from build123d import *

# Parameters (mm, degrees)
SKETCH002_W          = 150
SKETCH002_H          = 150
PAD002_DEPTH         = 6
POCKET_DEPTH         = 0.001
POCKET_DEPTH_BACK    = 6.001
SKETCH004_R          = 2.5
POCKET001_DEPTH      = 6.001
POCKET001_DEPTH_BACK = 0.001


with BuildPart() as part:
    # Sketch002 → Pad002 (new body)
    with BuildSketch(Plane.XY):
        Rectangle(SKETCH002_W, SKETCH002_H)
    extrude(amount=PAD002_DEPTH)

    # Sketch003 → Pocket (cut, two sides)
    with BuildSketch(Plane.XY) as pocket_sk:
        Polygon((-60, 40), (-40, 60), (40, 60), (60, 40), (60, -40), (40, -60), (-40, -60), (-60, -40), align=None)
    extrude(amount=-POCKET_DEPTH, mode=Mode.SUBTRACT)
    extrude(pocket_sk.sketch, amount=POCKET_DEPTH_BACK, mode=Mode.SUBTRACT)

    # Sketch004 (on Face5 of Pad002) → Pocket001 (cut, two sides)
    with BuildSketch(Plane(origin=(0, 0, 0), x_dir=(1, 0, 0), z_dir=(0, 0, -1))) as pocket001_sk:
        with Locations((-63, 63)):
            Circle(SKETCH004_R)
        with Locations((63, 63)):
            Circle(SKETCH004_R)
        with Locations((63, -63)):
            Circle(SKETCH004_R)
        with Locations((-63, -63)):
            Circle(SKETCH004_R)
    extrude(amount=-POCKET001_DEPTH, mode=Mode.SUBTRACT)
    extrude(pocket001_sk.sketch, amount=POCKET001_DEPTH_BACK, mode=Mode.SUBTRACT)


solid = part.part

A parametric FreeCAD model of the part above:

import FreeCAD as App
import Part
import Sketcher

V = App.Vector
Q = App.Units.Quantity


def add_polygon(sketch, points):
    """Adds a closed chain of lines whose ends are joined by coincident constraints."""
    first, n = sketch.GeometryCount, len(points)
    for a, b in zip(points, points[1:] + points[:1]):
        sketch.addGeometry(Part.LineSegment(App.Vector(*a, 0), App.Vector(*b, 0)), False)
    for i in range(n):
        sketch.addConstraint(Sketcher.Constraint("Coincident", first + i, 2, first + (i + 1) % n, 1))

doc = App.newDocument("Part")
body = doc.addObject("PartDesign::Body", "Body")

# Sketch on XY plane
sketch1 = body.newObject("Sketcher::SketchObject", "Sketch")
sketch1.AttachmentSupport = (doc.getObject("XY_Plane"), [""])
sketch1.MapMode = "FlatFace"
add_polygon(sketch1, [(-75, 75), (-75, -75), (75, -75), (75, 75)])  # lines 0-3
sketch1.addConstraint(Sketcher.Constraint("Vertical", 0))
sketch1.addConstraint(Sketcher.Constraint("Horizontal", 1))
sketch1.addConstraint(Sketcher.Constraint("Vertical", 2))
sketch1.addConstraint(Sketcher.Constraint("Horizontal", 3))
sketch1.addConstraint(Sketcher.Constraint("Symmetric", 0, 2, 2, 2, -1, 1))
sketch1.addConstraint(Sketcher.Constraint("Equal", 3, 0))
sketch1.addConstraint(Sketcher.Constraint("DistanceX", 1, 1, 1, 2, Q("150 mm")))
pad1 = body.newObject("PartDesign::Pad", "Pad")
pad1.Profile = sketch1
pad1.Length = 6

# Sketch on XY plane
sketch2 = body.newObject("Sketcher::SketchObject", "Sketch001")
sketch2.AttachmentSupport = (doc.getObject("XY_Plane"), [""])
sketch2.MapMode = "FlatFace"
add_polygon(sketch2, [(-40, 60), (-60, 40), (-60, -40), (-40, -60), (40, -60), (60, -40), (60, 40), (40, 60)])  # lines 0-7
sketch2.addConstraint(Sketcher.Constraint("Vertical", 1))
sketch2.addConstraint(Sketcher.Constraint("Horizontal", 3))
sketch2.addConstraint(Sketcher.Constraint("Vertical", 5))
sketch2.addConstraint(Sketcher.Constraint("Horizontal", 7))
sketch2.addConstraint(Sketcher.Constraint("Symmetric", 0, 2, 4, 2, -1, 1))
sketch2.addConstraint(Sketcher.Constraint("Symmetric", 2, 2, 6, 2, -1, 1))
sketch2.addConstraint(Sketcher.Constraint("Perpendicular", 0, 2))
sketch2.addConstraint(Sketcher.Constraint("Perpendicular", 2, 4))
sketch2.addConstraint(Sketcher.Constraint("Perpendicular", 4, 6))
sketch2.addConstraint(Sketcher.Constraint("Horizontal", 1, 2, 4, 2))
sketch2.addConstraint(Sketcher.Constraint("Vertical", 3, 2, 6, 2))
sketch2.addConstraint(Sketcher.Constraint("Equal", 7, 1))
sketch2.addConstraint(Sketcher.Constraint("DistanceX", 3, 1, 3, 2, Q("80 mm")))
sketch2.addConstraint(Sketcher.Constraint("DistanceX", 0, 2, -1, 1, Q("60 mm")))
pocket1 = body.newObject("PartDesign::Pocket", "Pocket")
pocket1.Profile = sketch2
pocket1.Type = "ThroughAll"
pocket1.Midplane = True

# Sketch on XY plane
sketch3 = body.newObject("Sketcher::SketchObject", "Sketch002")
sketch3.AttachmentSupport = (doc.getObject("XY_Plane"), [""])
sketch3.MapMode = "FlatFace"
sketch3.addGeometry(Part.Circle(V(-63, -63, 0), V(0, 0, 1), 2.5), False)
sketch3.addGeometry(Part.Circle(V(63, -63, 0), V(0, 0, 1), 2.5), False)
sketch3.addGeometry(Part.Circle(V(63, 63, 0), V(0, 0, 1), 2.5), False)
sketch3.addGeometry(Part.Circle(V(-63, 63, 0), V(0, 0, 1), 2.5), False)
sketch3.addConstraint(Sketcher.Constraint("Equal", 0, 1))
sketch3.addConstraint(Sketcher.Constraint("Equal", 1, 2))
sketch3.addConstraint(Sketcher.Constraint("Equal", 2, 3))
sketch3.addConstraint(Sketcher.Constraint("Symmetric", 0, 3, 2, 3, -1, 1))
sketch3.addConstraint(Sketcher.Constraint("Symmetric", 1, 3, 3, 3, -1, 1))
sketch3.addConstraint(Sketcher.Constraint("Symmetric", 0, 3, 1, 3, -2))
sketch3.addConstraint(Sketcher.Constraint("Diameter", 0, Q("5 mm")))
sketch3.addConstraint(Sketcher.Constraint("DistanceX", 0, 3, -1, 1, Q("63 mm")))
sketch3.addConstraint(Sketcher.Constraint("DistanceY", 0, 3, -1, 1, Q("63 mm")))
pocket2 = body.newObject("PartDesign::Pocket", "Pocket001")
pocket2.Profile = sketch3
pocket2.Type = "ThroughAll"
pocket2.Midplane = True

doc.recompute()
